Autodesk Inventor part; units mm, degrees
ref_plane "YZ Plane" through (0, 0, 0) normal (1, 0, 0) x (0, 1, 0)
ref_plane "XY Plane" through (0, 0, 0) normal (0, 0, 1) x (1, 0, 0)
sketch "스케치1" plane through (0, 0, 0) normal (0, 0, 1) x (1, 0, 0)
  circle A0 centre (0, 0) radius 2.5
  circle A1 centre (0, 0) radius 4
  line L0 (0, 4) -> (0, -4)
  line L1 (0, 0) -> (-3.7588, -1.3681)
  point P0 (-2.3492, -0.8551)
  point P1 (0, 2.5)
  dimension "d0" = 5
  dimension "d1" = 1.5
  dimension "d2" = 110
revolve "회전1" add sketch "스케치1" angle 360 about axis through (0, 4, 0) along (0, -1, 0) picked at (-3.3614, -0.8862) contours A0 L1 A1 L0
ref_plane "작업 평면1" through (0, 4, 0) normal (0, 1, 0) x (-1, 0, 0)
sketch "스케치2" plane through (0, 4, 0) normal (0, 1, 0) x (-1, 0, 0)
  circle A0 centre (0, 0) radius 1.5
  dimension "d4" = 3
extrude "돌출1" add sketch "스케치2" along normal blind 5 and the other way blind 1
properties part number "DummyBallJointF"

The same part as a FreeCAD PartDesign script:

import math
import FreeCAD as App
import Part
import Sketcher

V = App.Vector
Q = App.Units.Quantity

doc = App.newDocument("Part")
body = doc.addObject("PartDesign::Body", "Body")

sketch1 = body.newObject("Sketcher::SketchObject", "Sketch")
sketch1.AttachmentSupport = (doc.getObject("XY_Plane"), [""])
sketch1.MapMode = "FlatFace"
sketch1.addGeometry([
    Part.ArcOfCircle(Part.Circle(V(0, 0, 0), V(0, 0, 1), 2.5), math.radians(90), math.radians(200)),
    Part.LineSegment(V(0, 2.5, 0), V(0, 4, 0)),
    Part.ArcOfCircle(Part.Circle(V(0, 0, 0), V(0, 0, 1), 4), math.radians(90), math.radians(200)),
    Part.LineSegment(V(-3.8, -1.4, 0), V(-2.3, -0.9, 0)),
], False)
sketch1.addConstraint([
    Sketcher.Constraint("Coincident", 0, 1, 1, 1),
    Sketcher.Constraint("Coincident", 1, 2, 2, 1),
    Sketcher.Constraint("Coincident", 2, 2, 3, 1),
    Sketcher.Constraint("Coincident", 3, 2, 0, 2),
    Sketcher.Constraint("Vertical", 1),
    Sketcher.Constraint("Coincident", 0, 3, -1, 1),
    Sketcher.Constraint("Coincident", 2, 3, -1, 1),
    Sketcher.Constraint("PointOnObject", 0, 1, -2),
    Sketcher.Constraint("Radius", 0, Q("2.5 mm")),
    Sketcher.Constraint("DistanceY", 1, 1, 1, 2, Q("1.5 mm")),
    Sketcher.Constraint("Angle", 3, Q("20 deg")),
    Sketcher.Constraint("DistanceY", 2, 2, -1, 1, Q("1.368 mm")),
])
revolution = body.newObject("PartDesign::Revolution", "Revolution")
revolution.Profile = sketch1
revolution.ReferenceAxis = (sketch1, ["V_Axis"])
revolution.Angle = 360

sketch2 = body.newObject("Sketcher::SketchObject", "Sketch001")
sketch2.AttachmentSupport = (doc.getObject("XZ_Plane"), [""])
sketch2.MapMode = "FlatFace"
sketch2.AttachmentOffset = App.Placement(V(0, 0, -4), App.Rotation())
sketch2.addGeometry(Part.Circle(V(0, 0, 0), V(0, 0, 1), 1.5), False)
sketch2.addConstraint([
    Sketcher.Constraint("Coincident", 0, 3, -1, 1),
    Sketcher.Constraint("Diameter", 0, Q("3 mm")),
])
pad1 = body.newObject("PartDesign::Pad", "Pad")
pad1.Profile = sketch2
pad1.Type = "TwoLengths"
pad1.Length = 5
pad1.Length2 = 1
pad1.Reversed = True

doc.recompute()
